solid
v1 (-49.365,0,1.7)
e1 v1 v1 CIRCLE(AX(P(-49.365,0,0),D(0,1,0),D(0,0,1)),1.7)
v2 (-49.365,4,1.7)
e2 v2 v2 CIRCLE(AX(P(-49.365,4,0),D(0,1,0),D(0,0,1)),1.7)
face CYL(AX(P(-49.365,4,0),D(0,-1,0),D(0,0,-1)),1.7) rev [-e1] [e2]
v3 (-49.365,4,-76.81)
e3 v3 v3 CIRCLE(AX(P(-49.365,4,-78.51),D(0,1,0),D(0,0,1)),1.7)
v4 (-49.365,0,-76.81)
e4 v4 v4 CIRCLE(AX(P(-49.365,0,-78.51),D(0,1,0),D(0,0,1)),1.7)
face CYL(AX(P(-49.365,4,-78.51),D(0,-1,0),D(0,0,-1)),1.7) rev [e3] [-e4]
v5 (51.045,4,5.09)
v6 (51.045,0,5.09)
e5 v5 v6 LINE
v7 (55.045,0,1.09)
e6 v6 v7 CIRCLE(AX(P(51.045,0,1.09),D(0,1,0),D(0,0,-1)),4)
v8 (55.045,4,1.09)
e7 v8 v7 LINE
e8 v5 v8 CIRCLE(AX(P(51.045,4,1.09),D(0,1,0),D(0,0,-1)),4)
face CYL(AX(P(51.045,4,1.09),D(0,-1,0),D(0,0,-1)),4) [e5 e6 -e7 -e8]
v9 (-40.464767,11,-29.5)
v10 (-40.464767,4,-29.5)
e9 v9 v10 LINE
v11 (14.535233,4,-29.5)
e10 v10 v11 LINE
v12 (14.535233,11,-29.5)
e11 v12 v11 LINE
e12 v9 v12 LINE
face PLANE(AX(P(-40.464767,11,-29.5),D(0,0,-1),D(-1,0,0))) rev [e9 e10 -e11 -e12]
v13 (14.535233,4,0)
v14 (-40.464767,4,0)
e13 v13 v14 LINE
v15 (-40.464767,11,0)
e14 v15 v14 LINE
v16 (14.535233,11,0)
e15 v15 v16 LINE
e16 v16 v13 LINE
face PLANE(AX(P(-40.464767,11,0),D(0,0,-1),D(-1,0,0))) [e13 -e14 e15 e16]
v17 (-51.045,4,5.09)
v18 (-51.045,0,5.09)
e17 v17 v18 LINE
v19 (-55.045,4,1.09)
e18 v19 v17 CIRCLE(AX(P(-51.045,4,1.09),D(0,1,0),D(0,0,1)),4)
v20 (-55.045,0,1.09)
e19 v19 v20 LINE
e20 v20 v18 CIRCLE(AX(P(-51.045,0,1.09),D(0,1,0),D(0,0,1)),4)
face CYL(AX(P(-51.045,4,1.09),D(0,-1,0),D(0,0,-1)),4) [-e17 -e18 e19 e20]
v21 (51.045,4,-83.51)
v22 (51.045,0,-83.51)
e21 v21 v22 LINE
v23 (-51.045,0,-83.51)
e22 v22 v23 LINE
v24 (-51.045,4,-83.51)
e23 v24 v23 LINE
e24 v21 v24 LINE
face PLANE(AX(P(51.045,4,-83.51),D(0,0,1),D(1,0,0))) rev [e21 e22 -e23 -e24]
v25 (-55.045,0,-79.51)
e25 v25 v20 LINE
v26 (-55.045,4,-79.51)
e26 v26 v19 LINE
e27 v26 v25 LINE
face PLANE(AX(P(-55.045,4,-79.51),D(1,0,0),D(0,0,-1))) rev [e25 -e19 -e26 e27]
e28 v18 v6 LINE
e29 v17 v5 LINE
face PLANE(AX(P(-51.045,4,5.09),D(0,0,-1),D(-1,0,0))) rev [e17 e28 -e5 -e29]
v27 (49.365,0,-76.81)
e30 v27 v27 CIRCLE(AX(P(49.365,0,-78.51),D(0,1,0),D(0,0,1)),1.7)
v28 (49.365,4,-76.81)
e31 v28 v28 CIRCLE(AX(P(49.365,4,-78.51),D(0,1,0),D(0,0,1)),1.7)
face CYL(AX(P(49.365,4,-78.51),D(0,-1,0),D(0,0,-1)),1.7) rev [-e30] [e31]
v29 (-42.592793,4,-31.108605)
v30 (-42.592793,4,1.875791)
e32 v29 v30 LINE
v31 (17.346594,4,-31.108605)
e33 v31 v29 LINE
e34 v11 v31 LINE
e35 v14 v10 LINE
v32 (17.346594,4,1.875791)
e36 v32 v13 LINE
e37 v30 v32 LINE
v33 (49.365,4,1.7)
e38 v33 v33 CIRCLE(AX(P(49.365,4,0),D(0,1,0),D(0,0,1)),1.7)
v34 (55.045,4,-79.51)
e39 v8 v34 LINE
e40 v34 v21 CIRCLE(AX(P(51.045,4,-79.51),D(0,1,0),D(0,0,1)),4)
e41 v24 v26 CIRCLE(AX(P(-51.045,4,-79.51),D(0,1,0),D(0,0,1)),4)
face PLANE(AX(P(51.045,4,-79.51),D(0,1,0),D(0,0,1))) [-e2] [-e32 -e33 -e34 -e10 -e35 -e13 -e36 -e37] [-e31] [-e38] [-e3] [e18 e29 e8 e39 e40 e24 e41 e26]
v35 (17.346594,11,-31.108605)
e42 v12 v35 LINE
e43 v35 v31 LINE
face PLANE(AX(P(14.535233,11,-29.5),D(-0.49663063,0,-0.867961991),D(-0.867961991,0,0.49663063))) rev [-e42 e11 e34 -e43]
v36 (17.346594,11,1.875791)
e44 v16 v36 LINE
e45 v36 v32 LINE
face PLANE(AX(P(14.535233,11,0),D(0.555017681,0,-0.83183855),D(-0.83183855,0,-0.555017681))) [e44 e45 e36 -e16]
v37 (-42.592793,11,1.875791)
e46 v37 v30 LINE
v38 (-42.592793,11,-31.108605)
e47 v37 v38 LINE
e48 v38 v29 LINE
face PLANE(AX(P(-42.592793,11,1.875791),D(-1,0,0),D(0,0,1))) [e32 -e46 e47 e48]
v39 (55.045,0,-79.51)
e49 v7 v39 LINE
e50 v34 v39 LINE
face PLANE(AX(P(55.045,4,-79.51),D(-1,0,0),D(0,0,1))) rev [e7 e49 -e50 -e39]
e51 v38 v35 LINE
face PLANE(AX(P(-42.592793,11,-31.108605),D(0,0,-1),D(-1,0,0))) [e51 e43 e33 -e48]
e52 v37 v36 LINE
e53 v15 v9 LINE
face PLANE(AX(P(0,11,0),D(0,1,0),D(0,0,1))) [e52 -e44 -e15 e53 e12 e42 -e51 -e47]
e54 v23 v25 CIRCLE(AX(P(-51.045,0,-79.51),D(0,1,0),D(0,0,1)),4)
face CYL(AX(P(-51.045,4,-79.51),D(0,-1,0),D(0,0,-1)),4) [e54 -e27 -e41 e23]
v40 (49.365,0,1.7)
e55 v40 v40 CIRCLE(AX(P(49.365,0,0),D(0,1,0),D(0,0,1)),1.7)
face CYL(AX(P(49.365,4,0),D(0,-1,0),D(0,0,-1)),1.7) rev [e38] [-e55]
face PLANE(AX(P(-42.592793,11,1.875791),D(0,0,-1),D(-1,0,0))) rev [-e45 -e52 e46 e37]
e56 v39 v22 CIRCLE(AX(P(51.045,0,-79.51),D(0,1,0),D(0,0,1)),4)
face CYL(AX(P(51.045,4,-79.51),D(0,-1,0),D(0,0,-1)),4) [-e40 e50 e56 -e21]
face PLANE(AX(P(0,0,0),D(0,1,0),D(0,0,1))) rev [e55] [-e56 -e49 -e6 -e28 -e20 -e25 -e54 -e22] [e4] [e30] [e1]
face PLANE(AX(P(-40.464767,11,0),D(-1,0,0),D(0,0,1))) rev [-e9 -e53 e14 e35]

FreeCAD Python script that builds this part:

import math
import FreeCAD as App
import Part
import Sketcher


def add_polygon(sketch, points):
    """Adds a closed chain of lines whose ends are joined by coincident constraints."""
    first, n = sketch.GeometryCount, len(points)
    for a, b in zip(points, points[1:] + points[:1]):
        sketch.addGeometry(Part.LineSegment(App.Vector(*a, 0), App.Vector(*b, 0)), False)
    for i in range(n):
        sketch.addConstraint(Sketcher.Constraint("Coincident", first + i, 2, first + (i + 1) % n, 1))

doc = App.newDocument("Part")
body = doc.addObject("PartDesign::Body", "Body")

# Sketch on XZ plane
sketch1 = body.newObject("Sketcher::SketchObject", "Sketch")
sketch1.AttachmentSupport = (doc.getObject("XZ_Plane"), [""])
sketch1.MapMode = "FlatFace"
add_polygon(sketch1, [(14.535233, -29.5), (17.346594, -31.108605), (-42.592793, -31.108605), (-42.592793, 1.875791), (17.346594, 1.875791), (14.535233, 0), (-40.464767, 0), (-40.464767, -29.5)])  # lines 0-7
sketch1.addConstraint([
    Sketcher.Constraint("Horizontal", 1),
    Sketcher.Constraint("Vertical", 2),
    Sketcher.Constraint("Horizontal", 3),
    Sketcher.Constraint("Horizontal", 5),
    Sketcher.Constraint("Vertical", 6),
    Sketcher.Constraint("Horizontal", 7),
    Sketcher.Constraint("PointOnObject", 4, 2, -1),
    Sketcher.Constraint("Vertical", 0, 2, 3, 2),
    Sketcher.Constraint("Vertical", 4, 2, 7, 2),
    Sketcher.Constraint("DistanceX", 5, 2, 5, 1, 55.0),
    Sketcher.Constraint("DistanceY", 6, 2, 6, 1, 29.5),
    Sketcher.Constraint("DistanceX", 1, 2, 1, 1, 59.939387),
    Sketcher.Constraint("DistanceY", 2, 1, 2, 2, 32.984397),
    Sketcher.Constraint("DistanceY", -1, 1, 2, 2, 1.875791),
    Sketcher.Constraint("DistanceX", 4, 2, 3, 2, 2.811362),
    Sketcher.Constraint("DistanceX", -1, 1, 0, 2, 17.346594),
])
pad1 = body.newObject("PartDesign::Pad", "Pad")
pad1.Profile = sketch1
pad1.Length = 11
pad1.Reversed = True

# Sketch on XZ plane
sketch2 = body.newObject("Sketcher::SketchObject", "Sketch001")
sketch2.AttachmentSupport = (doc.getObject("XZ_Plane"), [""])
sketch2.MapMode = "FlatFace"
sketch2.addGeometry(Part.LineSegment(App.Vector(55.045, 1.09, 0), App.Vector(55.045, -79.51, 0)), False)  # 0
sketch2.addGeometry(Part.ArcOfCircle(Part.Circle(App.Vector(51.045, -79.51, 0), App.Vector(0, 0, 1), 4), math.radians(-90), math.radians(0)), False)  # 1
sketch2.addGeometry(Part.LineSegment(App.Vector(51.045, -83.51, 0), App.Vector(-51.045, -83.51, 0)), False)  # 2
sketch2.addGeometry(Part.ArcOfCircle(Part.Circle(App.Vector(-51.045, -79.51, 0), App.Vector(0, 0, 1), 4), math.radians(180), math.radians(270)), False)  # 3
sketch2.addGeometry(Part.LineSegment(App.Vector(-55.045, -79.51, 0), App.Vector(-55.045, 1.09, 0)), False)  # 4
sketch2.addGeometry(Part.ArcOfCircle(Part.Circle(App.Vector(-51.045, 1.09, 0), App.Vector(0, 0, 1), 4), math.radians(90), math.radians(180)), False)  # 5
sketch2.addGeometry(Part.LineSegment(App.Vector(-51.045, 5.09, 0), App.Vector(51.045, 5.09, 0)), False)  # 6
sketch2.addGeometry(Part.ArcOfCircle(Part.Circle(App.Vector(51.045, 1.09, 0), App.Vector(0, 0, 1), 4), math.radians(0), math.radians(90)), False)  # 7
sketch2.addGeometry(Part.Circle(App.Vector(-49.365, 0, 0), App.Vector(0, 0, 1), 1.7), False)  # 8
add_polygon(sketch2, [(-42.592793, -31.108605), (17.346594, -31.108605), (14.535233, -29.5), (-40.464767, -29.5), (-40.464767, 0), (14.535233, 0), (17.346594, 1.875791), (-42.592793, 1.875791)])  # lines 9-16
sketch2.addGeometry(Part.Circle(App.Vector(49.365, 0, 0), App.Vector(0, 0, 1), 1.7), False)  # 17
sketch2.addGeometry(Part.Circle(App.Vector(-49.365, -78.51, 0), App.Vector(0, 0, 1), 1.7), False)  # 18
sketch2.addGeometry(Part.Circle(App.Vector(49.365, -78.51, 0), App.Vector(0, 0, 1), 1.7), False)  # 19
sketch2.addConstraint([
    Sketcher.Constraint("Tangent", 0, 2, 1, 2),
    Sketcher.Constraint("Tangent", 1, 1, 2, 1),
    Sketcher.Constraint("Tangent", 2, 2, 3, 2),
    Sketcher.Constraint("Tangent", 3, 1, 4, 1),
    Sketcher.Constraint("Tangent", 4, 2, 5, 2),
    Sketcher.Constraint("Tangent", 5, 1, 6, 1),
    Sketcher.Constraint("Tangent", 6, 2, 7, 2),
    Sketcher.Constraint("Tangent", 7, 1, 0, 1),
    Sketcher.Constraint("Vertical", 0),
    Sketcher.Constraint("Horizontal", 2),
    Sketcher.Constraint("Vertical", 4),
    Sketcher.Constraint("Horizontal", 6),
    Sketcher.Constraint("Horizontal", 9),
    Sketcher.Constraint("Horizontal", 11),
    Sketcher.Constraint("Vertical", 12),
    Sketcher.Constraint("Horizontal", 13),
    Sketcher.Constraint("Horizontal", 15),
    Sketcher.Constraint("Vertical", 16),
    Sketcher.Constraint("Equal", 1, 3),
    Sketcher.Constraint("Equal", 3, 5),
    Sketcher.Constraint("Equal", 5, 7),
    Sketcher.Constraint("Equal", 8, 17),
    Sketcher.Constraint("Equal", 17, 18),
    Sketcher.Constraint("Equal", 18, 19),
    Sketcher.Constraint("Symmetric", 8, 3, 17, 3, -1, 1),
    Sketcher.Constraint("Symmetric", 18, 3, 19, 3, -2),
    Sketcher.Constraint("PointOnObject", 8, 3, -1),
    Sketcher.Constraint("PointOnObject", 12, 2, -1),
    Sketcher.Constraint("Vertical", 8, 3, 18, 3),
    Sketcher.Constraint("Vertical", 10, 2, 13, 2),
    Sketcher.Constraint("Vertical", 9, 2, 14, 2),
    Sketcher.Constraint("Radius", 1, 4.0),
    Sketcher.Constraint("Diameter", 8, 3.4),
    Sketcher.Constraint("DistanceX", 11, 2, 11, 1, 55.0),
    Sketcher.Constraint("DistanceY", 0, 2, 0, 1, 80.6),
    Sketcher.Constraint("DistanceY", 12, 1, 12, 2, 29.5),
    Sketcher.Constraint("DistanceY", 3, 3, 18, 3, 1.0),
    Sketcher.Constraint("DistanceX", 2, 2, 2, 1, 102.09),
    Sketcher.Constraint("DistanceY", 1, 3, -1, 1, 79.51),
    Sketcher.Constraint("DistanceX", 5, 3, 8, 3, 1.68),
    Sketcher.Constraint("DistanceX", 17, 3, 7, 3, 1.68),
    Sketcher.Constraint("DistanceX", 9, 1, 9, 2, 59.939387),
    Sketcher.Constraint("DistanceY", 16, 2, 16, 1, 32.984397),
    Sketcher.Constraint("DistanceY", -1, 1, 14, 2, 1.875791),
    Sketcher.Constraint("DistanceX", 10, 2, 9, 2, 2.811362),
    Sketcher.Constraint("DistanceX", -1, 1, 9, 2, 17.346594),
])
pad2 = body.newObject("PartDesign::Pad", "Pad001")
pad2.Profile = sketch2
pad2.Length = 4
pad2.Reversed = True

doc.recompute()
